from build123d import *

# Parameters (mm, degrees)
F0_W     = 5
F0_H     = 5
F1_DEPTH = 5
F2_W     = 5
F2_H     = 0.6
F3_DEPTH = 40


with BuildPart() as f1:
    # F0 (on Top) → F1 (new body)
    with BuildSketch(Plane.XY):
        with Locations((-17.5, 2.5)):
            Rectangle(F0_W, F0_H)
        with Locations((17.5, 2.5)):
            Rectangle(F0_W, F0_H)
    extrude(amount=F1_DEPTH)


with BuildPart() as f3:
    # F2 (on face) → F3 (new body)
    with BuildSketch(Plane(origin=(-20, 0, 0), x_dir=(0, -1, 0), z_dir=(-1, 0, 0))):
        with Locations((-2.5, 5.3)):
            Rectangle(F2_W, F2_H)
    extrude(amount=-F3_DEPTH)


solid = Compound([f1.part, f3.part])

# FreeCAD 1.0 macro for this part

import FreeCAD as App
import Part
import Sketcher

V = App.Vector


def add_polygon(sketch, points):
    """Adds a closed chain of lines whose ends are joined by coincident constraints."""
    first, n = sketch.GeometryCount, len(points)
    for a, b in zip(points, points[1:] + points[:1]):
        sketch.addGeometry(Part.LineSegment(App.Vector(*a, 0), App.Vector(*b, 0)), False)
    for i in range(n):
        sketch.addConstraint(Sketcher.Constraint("Coincident", first + i, 2, first + (i + 1) % n, 1))

doc = App.newDocument("Part")
body = doc.addObject("PartDesign::Body", "Body")
body.AllowCompound = True

# Sketch on XY plane
sketch1 = body.newObject("Sketcher::SketchObject", "Sketch")
sketch1.AttachmentSupport = (doc.getObject("XY_Plane"), [""])
sketch1.MapMode = "FlatFace"
add_polygon(sketch1, [(-20, 5), (-20, 0), (-15, 0), (-15, 5)])  # lines 0-3
add_polygon(sketch1, [(15, 5), (15, 0), (20, 0), (20, 5)])  # lines 4-7
sketch1.addConstraint([
    Sketcher.Constraint("Vertical", 0),
    Sketcher.Constraint("Horizontal", 1),
    Sketcher.Constraint("Vertical", 2),
    Sketcher.Constraint("Horizontal", 3),
    Sketcher.Constraint("Vertical", 4),
    Sketcher.Constraint("Horizontal", 5),
    Sketcher.Constraint("Vertical", 6),
    Sketcher.Constraint("Horizontal", 7),
    Sketcher.Constraint("Symmetric", 1, 2, 4, 2, -1, 1),
    Sketcher.Constraint("Symmetric", 0, 2, 5, 2, -2),
    Sketcher.Constraint("Horizontal", 3, 2, 6, 2),
    Sketcher.Constraint("Equal", 7, 0),
    Sketcher.Constraint("DistanceX", 1, 1, 1, 2, 5.0),
    Sketcher.Constraint("DistanceX", 0, 2, -1, 1, 20.0),
])
pad1 = body.newObject("PartDesign::Pad", "Pad")
pad1.Profile = sketch1
pad1.Length = 5
body2 = doc.addObject("PartDesign::Body", "Body001")

# Sketch on YZ plane
sketch2 = body2.newObject("Sketcher::SketchObject", "Sketch001")
sketch2.AttachmentSupport = (doc.getObject("YZ_Plane001"), [""])
sketch2.MapMode = "FlatFace"
sketch2.AttachmentOffset = App.Placement(V(0, 0, -20), App.Rotation())
add_polygon(sketch2, [(5, 5.6), (5, 5), (0, 5), (0, 5.6)])  # lines 0-3
sketch2.addConstraint([
    Sketcher.Constraint("Vertical", 0),
    Sketcher.Constraint("Horizontal", 1),
    Sketcher.Constraint("Vertical", 2),
    Sketcher.Constraint("Horizontal", 3),
    Sketcher.Constraint("PointOnObject", 1, 2, -2),
    Sketcher.Constraint("DistanceX", 1, 2, 1, 1, 5.0),
    Sketcher.Constraint("DistanceY", 0, 2, 0, 1, 0.6),
    Sketcher.Constraint("DistanceY", -1, 1, 0, 2, 5.0),
])
pad2 = body2.newObject("PartDesign::Pad", "Pad001")
pad2.Profile = sketch2
pad2.Length = 40

doc.recompute()
